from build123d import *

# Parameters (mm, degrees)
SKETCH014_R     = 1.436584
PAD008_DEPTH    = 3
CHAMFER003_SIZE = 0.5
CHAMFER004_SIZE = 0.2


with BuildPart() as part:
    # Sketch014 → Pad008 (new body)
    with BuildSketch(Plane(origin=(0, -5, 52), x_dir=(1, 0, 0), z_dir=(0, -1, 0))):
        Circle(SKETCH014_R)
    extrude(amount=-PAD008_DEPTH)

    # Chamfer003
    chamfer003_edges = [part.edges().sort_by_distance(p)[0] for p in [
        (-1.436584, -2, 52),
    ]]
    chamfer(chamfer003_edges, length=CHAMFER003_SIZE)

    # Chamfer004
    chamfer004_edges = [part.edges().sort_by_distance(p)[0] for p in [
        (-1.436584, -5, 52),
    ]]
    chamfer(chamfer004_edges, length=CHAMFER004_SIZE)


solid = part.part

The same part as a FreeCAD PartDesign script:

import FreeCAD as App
import Part
import Sketcher

V = App.Vector


def edges_at(feature, points):
    """Names of the edges that pass closest to the given points."""
    edges = feature.Shape.Edges
    near = lambda p: min(range(len(edges)), key=lambda i: edges[i].distToShape(Part.Vertex(*p))[0])
    return sorted({f"Edge{near(p) + 1}" for p in points})

doc = App.newDocument("Part")
body = doc.addObject("PartDesign::Body", "Body")

# Sketch on XZ plane
sketch1 = body.newObject("Sketcher::SketchObject", "Sketch")
sketch1.AttachmentSupport = (doc.getObject("XZ_Plane"), [""])
sketch1.MapMode = "FlatFace"
sketch1.AttachmentOffset = App.Placement(V(0, 0, 5), App.Rotation())
sketch1.addGeometry(Part.Circle(V(0, 52, 0), V(0, 0, 1), 1.4), False)
sketch1.addConstraint([
    Sketcher.Constraint("PointOnObject", 0, 3, -2),
    Sketcher.Constraint("DistanceY", -1, 1, 0, 3, 52.0),
    Sketcher.Constraint("Diameter", 0, 2.873168),
])
pad1 = body.newObject("PartDesign::Pad", "Pad")
pad1.Profile = sketch1
pad1.Length = 3
pad1.Reversed = True
doc.recompute()

chamfer = body.newObject("PartDesign::Chamfer", "Chamfer")
chamfer.Base = (pad1, edges_at(pad1, [(-1.437, -2, 52)]))
chamfer.Size = 0.5
doc.recompute()

chamfer2 = body.newObject("PartDesign::Chamfer", "Chamfer001")
chamfer2.Base = (chamfer, edges_at(chamfer, [(-1.437, -5, 52)]))
chamfer2.Size = 0.2

doc.recompute()
